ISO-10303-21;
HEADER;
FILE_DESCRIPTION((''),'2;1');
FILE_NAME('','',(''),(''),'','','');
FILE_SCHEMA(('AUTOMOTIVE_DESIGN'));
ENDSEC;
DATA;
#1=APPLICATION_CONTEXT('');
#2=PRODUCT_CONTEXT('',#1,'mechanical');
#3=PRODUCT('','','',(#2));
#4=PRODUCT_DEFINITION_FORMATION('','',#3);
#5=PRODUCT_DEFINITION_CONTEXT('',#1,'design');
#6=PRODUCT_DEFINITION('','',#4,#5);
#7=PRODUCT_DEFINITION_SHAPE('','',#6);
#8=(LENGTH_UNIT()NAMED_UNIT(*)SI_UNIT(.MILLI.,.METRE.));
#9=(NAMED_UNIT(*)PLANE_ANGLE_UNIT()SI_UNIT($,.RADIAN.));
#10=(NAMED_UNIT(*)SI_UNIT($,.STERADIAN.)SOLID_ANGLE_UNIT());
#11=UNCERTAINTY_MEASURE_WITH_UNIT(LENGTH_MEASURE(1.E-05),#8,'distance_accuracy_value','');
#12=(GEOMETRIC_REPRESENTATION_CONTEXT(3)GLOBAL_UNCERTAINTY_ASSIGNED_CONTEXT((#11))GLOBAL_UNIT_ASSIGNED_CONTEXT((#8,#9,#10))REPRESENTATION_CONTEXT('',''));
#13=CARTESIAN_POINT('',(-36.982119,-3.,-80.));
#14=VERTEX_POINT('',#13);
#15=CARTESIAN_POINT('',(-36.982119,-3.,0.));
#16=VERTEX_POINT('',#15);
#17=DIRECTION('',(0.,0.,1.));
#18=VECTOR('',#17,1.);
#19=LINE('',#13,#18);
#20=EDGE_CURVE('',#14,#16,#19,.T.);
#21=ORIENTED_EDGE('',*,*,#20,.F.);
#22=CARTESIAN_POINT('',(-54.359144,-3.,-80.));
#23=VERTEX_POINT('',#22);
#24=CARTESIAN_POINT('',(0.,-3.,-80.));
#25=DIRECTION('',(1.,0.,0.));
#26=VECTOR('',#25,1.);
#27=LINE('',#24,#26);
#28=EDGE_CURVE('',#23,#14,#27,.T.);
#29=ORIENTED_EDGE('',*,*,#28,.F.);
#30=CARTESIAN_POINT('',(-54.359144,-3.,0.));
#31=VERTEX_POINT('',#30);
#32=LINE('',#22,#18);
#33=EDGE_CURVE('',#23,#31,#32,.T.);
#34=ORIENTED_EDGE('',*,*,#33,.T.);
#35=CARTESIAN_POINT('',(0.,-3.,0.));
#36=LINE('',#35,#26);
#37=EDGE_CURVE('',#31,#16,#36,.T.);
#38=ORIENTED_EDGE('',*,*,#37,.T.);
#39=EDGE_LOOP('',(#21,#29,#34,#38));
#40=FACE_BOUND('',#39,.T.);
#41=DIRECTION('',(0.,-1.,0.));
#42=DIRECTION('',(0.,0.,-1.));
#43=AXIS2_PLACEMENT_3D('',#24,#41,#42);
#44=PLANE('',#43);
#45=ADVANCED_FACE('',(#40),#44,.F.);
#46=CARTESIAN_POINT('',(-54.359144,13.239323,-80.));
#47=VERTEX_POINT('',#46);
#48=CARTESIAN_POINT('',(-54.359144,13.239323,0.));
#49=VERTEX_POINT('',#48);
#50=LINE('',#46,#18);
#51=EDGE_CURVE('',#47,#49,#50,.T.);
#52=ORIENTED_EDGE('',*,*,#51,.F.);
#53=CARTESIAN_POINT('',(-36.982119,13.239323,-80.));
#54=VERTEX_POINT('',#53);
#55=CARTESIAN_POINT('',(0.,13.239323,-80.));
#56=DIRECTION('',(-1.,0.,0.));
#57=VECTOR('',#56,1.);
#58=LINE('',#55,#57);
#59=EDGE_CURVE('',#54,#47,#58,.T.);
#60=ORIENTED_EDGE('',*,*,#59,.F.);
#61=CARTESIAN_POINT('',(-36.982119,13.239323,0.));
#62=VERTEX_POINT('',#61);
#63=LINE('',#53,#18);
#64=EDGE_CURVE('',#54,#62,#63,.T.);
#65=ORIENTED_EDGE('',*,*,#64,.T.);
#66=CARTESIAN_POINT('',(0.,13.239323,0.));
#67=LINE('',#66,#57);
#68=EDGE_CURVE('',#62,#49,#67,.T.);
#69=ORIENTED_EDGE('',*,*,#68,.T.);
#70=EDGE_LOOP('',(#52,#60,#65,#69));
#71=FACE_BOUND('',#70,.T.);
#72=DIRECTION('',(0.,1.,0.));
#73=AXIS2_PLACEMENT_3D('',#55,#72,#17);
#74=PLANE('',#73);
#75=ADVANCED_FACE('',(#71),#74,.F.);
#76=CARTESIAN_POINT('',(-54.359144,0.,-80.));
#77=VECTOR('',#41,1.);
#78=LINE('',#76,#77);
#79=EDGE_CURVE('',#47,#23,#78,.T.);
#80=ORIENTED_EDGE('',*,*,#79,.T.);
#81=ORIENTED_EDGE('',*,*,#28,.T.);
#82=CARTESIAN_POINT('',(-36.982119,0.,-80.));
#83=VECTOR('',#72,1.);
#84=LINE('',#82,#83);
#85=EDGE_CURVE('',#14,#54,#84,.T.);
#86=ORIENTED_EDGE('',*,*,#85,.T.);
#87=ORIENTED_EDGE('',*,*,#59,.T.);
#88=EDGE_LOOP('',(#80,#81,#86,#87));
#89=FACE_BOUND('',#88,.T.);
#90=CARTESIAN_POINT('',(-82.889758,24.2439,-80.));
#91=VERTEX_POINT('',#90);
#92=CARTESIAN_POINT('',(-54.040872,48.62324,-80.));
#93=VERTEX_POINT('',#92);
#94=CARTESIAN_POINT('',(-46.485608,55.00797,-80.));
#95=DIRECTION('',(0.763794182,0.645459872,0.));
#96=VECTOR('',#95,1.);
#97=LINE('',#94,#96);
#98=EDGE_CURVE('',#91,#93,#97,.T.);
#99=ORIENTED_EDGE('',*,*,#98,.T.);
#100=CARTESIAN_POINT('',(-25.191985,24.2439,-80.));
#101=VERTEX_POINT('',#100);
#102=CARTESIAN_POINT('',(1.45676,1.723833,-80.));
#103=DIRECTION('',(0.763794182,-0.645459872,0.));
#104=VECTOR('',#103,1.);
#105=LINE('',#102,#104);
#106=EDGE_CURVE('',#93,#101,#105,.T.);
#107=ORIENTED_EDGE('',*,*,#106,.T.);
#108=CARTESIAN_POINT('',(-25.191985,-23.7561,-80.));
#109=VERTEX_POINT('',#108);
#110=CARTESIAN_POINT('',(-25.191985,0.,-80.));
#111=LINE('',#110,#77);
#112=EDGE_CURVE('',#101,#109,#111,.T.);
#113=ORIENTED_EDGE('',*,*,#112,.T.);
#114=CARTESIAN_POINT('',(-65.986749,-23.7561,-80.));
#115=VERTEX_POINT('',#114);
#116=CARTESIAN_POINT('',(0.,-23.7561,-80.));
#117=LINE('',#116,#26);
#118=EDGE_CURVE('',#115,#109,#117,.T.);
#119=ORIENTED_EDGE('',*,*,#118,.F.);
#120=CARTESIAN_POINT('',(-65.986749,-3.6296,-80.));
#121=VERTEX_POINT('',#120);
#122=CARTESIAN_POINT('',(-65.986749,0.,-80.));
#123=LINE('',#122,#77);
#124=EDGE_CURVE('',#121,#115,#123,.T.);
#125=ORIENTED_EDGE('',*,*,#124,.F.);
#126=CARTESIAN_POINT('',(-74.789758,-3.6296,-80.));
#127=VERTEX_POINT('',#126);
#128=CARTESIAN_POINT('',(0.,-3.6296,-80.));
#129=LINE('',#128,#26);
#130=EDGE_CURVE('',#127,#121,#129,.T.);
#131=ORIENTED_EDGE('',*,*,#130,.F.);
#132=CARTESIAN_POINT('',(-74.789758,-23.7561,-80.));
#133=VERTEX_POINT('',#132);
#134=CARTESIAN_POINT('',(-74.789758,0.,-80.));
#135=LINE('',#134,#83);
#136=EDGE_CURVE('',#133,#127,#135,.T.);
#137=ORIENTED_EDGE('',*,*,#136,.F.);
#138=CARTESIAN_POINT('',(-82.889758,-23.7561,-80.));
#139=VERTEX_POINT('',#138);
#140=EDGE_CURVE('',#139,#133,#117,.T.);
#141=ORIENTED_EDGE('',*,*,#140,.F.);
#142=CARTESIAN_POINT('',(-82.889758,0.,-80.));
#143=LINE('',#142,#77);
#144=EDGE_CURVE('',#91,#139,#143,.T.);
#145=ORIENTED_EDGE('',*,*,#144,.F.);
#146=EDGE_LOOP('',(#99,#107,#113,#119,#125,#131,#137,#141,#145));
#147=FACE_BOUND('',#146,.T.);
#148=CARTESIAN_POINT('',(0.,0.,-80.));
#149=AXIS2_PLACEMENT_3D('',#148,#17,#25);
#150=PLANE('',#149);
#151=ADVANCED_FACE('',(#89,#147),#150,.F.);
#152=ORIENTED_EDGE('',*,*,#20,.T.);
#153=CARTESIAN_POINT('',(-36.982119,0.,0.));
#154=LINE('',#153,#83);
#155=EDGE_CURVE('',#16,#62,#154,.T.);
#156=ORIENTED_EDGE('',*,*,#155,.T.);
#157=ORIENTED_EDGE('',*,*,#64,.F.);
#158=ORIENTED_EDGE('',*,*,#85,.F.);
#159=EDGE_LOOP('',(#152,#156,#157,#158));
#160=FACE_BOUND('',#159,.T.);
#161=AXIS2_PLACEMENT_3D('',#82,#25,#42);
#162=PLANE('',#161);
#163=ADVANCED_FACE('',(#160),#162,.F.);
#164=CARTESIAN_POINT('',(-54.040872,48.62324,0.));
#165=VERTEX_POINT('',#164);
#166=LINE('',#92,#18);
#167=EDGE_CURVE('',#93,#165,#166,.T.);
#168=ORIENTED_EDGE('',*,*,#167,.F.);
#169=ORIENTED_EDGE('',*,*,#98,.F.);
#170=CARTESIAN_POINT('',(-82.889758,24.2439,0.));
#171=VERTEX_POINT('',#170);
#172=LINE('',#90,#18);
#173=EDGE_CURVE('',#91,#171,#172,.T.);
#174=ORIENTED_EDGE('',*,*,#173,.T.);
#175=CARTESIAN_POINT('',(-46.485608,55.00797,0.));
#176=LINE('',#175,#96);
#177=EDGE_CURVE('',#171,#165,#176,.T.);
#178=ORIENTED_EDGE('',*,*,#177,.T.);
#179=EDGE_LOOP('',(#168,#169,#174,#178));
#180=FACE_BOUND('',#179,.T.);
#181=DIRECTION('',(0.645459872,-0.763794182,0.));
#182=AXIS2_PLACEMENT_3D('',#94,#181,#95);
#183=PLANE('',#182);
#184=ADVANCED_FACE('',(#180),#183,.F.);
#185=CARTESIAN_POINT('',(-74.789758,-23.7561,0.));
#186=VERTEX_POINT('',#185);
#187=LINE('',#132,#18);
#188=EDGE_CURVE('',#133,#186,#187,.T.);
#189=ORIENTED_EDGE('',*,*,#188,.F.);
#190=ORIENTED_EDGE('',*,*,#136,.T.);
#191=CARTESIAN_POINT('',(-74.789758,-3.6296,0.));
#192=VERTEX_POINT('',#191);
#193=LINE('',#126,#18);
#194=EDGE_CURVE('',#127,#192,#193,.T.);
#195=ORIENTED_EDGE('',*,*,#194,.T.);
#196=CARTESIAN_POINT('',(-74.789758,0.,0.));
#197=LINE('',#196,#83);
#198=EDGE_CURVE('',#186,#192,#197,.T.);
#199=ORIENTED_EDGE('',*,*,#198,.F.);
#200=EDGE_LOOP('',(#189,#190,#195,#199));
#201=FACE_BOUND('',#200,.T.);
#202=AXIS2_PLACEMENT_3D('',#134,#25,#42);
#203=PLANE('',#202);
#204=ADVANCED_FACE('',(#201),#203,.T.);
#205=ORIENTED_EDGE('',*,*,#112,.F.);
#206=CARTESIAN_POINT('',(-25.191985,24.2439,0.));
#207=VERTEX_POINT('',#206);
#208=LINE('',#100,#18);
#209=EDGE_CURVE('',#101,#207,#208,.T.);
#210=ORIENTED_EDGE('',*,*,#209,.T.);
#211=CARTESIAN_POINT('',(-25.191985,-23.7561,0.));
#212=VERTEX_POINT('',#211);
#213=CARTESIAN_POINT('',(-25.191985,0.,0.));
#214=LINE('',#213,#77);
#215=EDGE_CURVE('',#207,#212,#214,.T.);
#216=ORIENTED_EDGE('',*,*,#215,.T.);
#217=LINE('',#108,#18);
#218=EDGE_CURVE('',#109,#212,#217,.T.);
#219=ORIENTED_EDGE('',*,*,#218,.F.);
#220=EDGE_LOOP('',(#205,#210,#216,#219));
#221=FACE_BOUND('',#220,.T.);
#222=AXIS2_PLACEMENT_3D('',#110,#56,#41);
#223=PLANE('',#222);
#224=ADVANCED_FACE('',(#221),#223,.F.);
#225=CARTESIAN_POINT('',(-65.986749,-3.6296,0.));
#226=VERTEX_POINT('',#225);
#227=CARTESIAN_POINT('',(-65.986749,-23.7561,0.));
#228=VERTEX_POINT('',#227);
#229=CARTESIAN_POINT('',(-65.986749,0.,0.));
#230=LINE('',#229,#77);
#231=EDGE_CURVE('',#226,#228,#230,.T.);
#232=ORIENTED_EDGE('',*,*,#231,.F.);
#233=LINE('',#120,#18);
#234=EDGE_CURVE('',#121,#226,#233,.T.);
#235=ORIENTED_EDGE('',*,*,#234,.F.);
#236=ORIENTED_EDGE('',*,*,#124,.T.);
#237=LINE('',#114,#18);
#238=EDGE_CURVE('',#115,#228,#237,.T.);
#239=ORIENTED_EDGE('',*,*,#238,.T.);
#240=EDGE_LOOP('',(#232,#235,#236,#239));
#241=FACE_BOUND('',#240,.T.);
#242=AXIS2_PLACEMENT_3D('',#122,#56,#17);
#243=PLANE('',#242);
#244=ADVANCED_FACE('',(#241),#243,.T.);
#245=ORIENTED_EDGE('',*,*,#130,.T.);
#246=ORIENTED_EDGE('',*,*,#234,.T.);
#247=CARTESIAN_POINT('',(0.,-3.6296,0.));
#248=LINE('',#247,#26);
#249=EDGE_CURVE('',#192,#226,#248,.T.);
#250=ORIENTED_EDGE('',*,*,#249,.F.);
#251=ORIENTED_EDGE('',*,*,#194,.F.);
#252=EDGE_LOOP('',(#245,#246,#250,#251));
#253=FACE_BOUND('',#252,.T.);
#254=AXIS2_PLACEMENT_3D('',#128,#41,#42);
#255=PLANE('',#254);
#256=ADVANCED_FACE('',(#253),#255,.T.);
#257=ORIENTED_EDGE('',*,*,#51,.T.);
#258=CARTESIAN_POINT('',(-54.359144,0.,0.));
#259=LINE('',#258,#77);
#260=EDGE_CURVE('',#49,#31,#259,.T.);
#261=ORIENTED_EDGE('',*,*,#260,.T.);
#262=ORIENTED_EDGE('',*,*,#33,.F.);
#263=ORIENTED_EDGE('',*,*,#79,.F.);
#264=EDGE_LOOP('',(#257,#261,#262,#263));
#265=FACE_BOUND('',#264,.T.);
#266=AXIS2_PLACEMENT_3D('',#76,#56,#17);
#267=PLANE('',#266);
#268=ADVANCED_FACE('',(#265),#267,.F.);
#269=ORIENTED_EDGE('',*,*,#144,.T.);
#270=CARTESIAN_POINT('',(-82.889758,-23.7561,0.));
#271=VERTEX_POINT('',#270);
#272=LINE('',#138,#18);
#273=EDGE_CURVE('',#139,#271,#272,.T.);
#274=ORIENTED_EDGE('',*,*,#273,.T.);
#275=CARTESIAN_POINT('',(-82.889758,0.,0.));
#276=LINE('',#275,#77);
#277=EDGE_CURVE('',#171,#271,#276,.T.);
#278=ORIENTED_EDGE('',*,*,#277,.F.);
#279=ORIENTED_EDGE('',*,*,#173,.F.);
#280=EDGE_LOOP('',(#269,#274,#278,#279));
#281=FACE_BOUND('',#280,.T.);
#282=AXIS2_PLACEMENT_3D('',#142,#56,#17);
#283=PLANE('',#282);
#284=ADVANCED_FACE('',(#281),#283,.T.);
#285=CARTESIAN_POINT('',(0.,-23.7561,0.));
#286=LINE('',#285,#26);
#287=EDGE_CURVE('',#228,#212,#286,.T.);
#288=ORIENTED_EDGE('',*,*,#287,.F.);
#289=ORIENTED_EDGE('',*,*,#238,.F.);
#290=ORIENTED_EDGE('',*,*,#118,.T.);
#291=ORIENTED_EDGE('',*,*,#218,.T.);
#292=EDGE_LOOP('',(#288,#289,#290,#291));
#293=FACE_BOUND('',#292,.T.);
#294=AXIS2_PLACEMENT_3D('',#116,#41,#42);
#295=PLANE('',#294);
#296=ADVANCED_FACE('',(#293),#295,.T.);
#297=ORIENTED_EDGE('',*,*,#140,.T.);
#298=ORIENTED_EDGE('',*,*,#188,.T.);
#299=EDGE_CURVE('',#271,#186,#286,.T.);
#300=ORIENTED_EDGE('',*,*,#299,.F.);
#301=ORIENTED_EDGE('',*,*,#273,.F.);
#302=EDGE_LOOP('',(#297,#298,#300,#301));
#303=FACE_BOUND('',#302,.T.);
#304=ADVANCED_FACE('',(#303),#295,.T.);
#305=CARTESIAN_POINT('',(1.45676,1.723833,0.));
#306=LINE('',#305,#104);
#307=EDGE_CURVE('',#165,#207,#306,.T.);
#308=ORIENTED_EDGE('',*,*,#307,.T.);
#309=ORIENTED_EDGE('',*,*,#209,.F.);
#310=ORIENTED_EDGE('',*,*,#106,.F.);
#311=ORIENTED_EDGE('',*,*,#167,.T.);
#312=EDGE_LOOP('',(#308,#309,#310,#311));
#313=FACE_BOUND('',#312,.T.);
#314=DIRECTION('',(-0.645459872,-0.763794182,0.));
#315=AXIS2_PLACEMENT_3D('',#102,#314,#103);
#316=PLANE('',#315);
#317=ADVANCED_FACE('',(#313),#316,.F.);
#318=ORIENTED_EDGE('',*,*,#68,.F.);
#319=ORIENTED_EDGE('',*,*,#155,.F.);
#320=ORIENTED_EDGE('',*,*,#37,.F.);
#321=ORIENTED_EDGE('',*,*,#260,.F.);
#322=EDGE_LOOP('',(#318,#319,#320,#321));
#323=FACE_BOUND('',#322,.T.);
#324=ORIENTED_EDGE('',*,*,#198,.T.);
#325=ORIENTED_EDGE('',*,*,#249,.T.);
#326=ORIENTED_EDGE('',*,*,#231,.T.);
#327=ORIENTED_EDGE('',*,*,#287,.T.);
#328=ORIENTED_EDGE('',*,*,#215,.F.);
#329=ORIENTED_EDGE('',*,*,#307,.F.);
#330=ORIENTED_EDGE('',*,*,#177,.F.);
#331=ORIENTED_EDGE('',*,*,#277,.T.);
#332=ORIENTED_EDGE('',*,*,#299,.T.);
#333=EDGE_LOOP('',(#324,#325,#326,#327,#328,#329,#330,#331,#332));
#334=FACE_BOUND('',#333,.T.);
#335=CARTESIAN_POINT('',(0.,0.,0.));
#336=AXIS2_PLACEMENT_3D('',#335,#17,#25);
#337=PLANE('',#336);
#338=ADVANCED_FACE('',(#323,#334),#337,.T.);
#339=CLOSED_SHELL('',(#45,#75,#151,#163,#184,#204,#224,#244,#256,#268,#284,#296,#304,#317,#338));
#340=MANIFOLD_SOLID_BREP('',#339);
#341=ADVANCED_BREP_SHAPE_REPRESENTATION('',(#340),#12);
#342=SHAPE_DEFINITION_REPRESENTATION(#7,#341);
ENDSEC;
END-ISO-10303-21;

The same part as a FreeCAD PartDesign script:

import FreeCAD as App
import Part
import Sketcher

V = App.Vector


def add_polygon(sketch, points):
    """Adds a closed chain of lines whose ends are joined by coincident constraints."""
    first, n = sketch.GeometryCount, len(points)
    for a, b in zip(points, points[1:] + points[:1]):
        sketch.addGeometry(Part.LineSegment(App.Vector(*a, 0), App.Vector(*b, 0)), False)
    for i in range(n):
        sketch.addConstraint(Sketcher.Constraint("Coincident", first + i, 2, first + (i + 1) % n, 1))

doc = App.newDocument("Part")
params = doc.addObject("Spreadsheet::Sheet", "Params")
for row, (alias, value) in enumerate([
    ("sketch1_height", "48 mm"),
    ("sketch1_width", "8.1 mm"),
    ("pad1_length", "80 mm"),
    ("pad2_length", "80 mm"),
], start=1):
    params.set(f"A{row}", alias)
    params.set(f"B{row}", "=" + value)
    params.setAlias(f"B{row}", alias)

body = doc.addObject("PartDesign::Body", "Body")

# Sketch on XY plane
sketch1 = body.newObject("Sketcher::SketchObject", "Sketch")
sketch1.AttachmentSupport = (doc.getObject("XY_Plane"), [""])
sketch1.MapMode = "FlatFace"
add_polygon(sketch1, [(-25, 24), (-83, 24), (-83, -24), (-75, -24), (-75, -4), (-66, -4), (-66, -24), (-25, -24)])  # lines 0-7
add_polygon(sketch1, [(-37, -3), (-54, -3), (-54, 13), (-37, 13)])  # lines 8-11
sketch1.addConstraint([
    Sketcher.Constraint("Horizontal", 0),
    Sketcher.Constraint("Vertical", 1),
    Sketcher.Constraint("Horizontal", 2),
    Sketcher.Constraint("Vertical", 3),
    Sketcher.Constraint("Horizontal", 4),
    Sketcher.Constraint("Vertical", 5),
    Sketcher.Constraint("Horizontal", 6),
    Sketcher.Constraint("Vertical", 7),
    Sketcher.Constraint("Horizontal", 8),
    Sketcher.Constraint("Vertical", 9),
    Sketcher.Constraint("Horizontal", 10),
    Sketcher.Constraint("Vertical", 11),
    Sketcher.Constraint("Horizontal", 2, 2, 5, 2),
    Sketcher.Constraint("DistanceY", 1, 2, 1, 1, 48.0),
    Sketcher.Constraint("DistanceX", 2, 1, 2, 2, 8.1),
    Sketcher.Constraint("DistanceY", 8, 2, -1, 1, 3.0),
    Sketcher.Constraint("DistanceY", 3, 1, 3, 2, 20.1265),
    Sketcher.Constraint("DistanceX", 4, 1, 4, 2, 8.80301),
    Sketcher.Constraint("DistanceY", -1, 1, 0, 2, 24.2439),
    Sketcher.Constraint("DistanceX", 0, 2, 0, 1, 57.697773),
    Sketcher.Constraint("DistanceX", 8, 2, 8, 1, 17.377026),
    Sketcher.Constraint("DistanceY", 9, 1, 9, 2, 16.239323),
    Sketcher.Constraint("DistanceX", 0, 2, -1, 1, 82.889758),
    Sketcher.Constraint("DistanceX", 10, 2, -1, 1, 36.982119),
])
sketch1.setExpression("Constraints[25]", "Params.sketch1_height")
sketch1.setExpression("Constraints[26]", "Params.sketch1_width")
pad1 = body.newObject("PartDesign::Pad", "Pad")
pad1.Profile = sketch1
pad1.setExpression("Length", "Params.pad1_length")
pad1.Reversed = True

# Sketch on XY plane
sketch2 = body.newObject("Sketcher::SketchObject", "Sketch001")
sketch2.AttachmentSupport = (doc.getObject("XY_Plane"), [""])
sketch2.MapMode = "FlatFace"
add_polygon(sketch2, [(-25, 24), (-54, 49), (-83, 24)])  # lines 0-2
sketch2.addConstraint([
    Sketcher.Constraint("Horizontal", 2),
    Sketcher.Constraint("Equal", 0, 1),
    Sketcher.Constraint("DistanceY", -1, 1, 1, 2, 24.2439),
    Sketcher.Constraint("DistanceX", 2, 1, 2, 2, 57.697773),
    Sketcher.Constraint("DistanceX", 0, 2, -1, 1, 54.040872),
    Sketcher.Constraint("DistanceY", -1, 1, 0, 2, 48.62324),
])
pad2 = body.newObject("PartDesign::Pad", "Pad001")
pad2.Profile = sketch2
pad2.setExpression("Length", "Params.pad2_length")
pad2.Reversed = True

doc.recompute()
